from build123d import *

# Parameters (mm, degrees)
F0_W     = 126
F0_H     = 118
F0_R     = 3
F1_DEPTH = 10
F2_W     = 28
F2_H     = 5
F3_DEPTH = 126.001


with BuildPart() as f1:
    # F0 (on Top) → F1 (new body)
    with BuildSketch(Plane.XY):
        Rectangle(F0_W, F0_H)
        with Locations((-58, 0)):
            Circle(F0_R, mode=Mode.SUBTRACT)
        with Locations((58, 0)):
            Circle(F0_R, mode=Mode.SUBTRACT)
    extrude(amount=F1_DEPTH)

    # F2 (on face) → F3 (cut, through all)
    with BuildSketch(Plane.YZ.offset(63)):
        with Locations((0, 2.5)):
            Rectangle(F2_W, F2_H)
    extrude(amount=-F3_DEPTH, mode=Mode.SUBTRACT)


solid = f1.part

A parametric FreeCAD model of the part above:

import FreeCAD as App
import Part
import Sketcher
from FreeCAD import Vector
Q = App.Units.Quantity


def add_polygon(sketch, points):
    """Adds a closed chain of lines whose ends are joined by coincident constraints."""
    first, n = sketch.GeometryCount, len(points)
    for a, b in zip(points, points[1:] + points[:1]):
        sketch.addGeometry(Part.LineSegment(App.Vector(*a, 0), App.Vector(*b, 0)), False)
    for i in range(n):
        sketch.addConstraint(Sketcher.Constraint("Coincident", first + i, 2, first + (i + 1) % n, 1))

doc = App.newDocument("Part")
body = doc.addObject("PartDesign::Body", "Body")

# Sketch on XY plane
sketch1 = body.newObject("Sketcher::SketchObject", "Sketch")
sketch1.AttachmentSupport = (doc.getObject("XY_Plane"), [""])
sketch1.MapMode = "FlatFace"
add_polygon(sketch1, [(-63, 59), (-63, -59), (63, -59), (63, 59)])  # lines 0-3
sketch1.addGeometry(Part.Circle(Vector(-58, 0, 0), Vector(0, 0, 1), 3), False)  # 4
sketch1.addGeometry(Part.Circle(Vector(58, 0, 0), Vector(0, 0, 1), 3), False)  # 5
sketch1.addConstraint([
    Sketcher.Constraint("Vertical", 0),
    Sketcher.Constraint("Horizontal", 1),
    Sketcher.Constraint("Vertical", 2),
    Sketcher.Constraint("Horizontal", 3),
    Sketcher.Constraint("Equal", 4, 5),
    Sketcher.Constraint("Symmetric", 4, 3, 5, 3, -1, 1),
    Sketcher.Constraint("Symmetric", 0, 2, 2, 2, -1, 1),
    Sketcher.Constraint("PointOnObject", 4, 3, -1),
    Sketcher.Constraint("Diameter", 4, Q("6 mm")),
    Sketcher.Constraint("DistanceX", 1, 1, 1, 2, Q("126 mm")),
    Sketcher.Constraint("DistanceY", 0, 2, 0, 1, Q("118 mm")),
    Sketcher.Constraint("DistanceX", 4, 3, -1, 1, Q("58 mm")),
])
pad1 = body.newObject("PartDesign::Pad", "Pad")
pad1.Profile = sketch1
pad1.Length = 10

# Sketch on YZ plane
sketch2 = body.newObject("Sketcher::SketchObject", "Sketch001")
sketch2.AttachmentSupport = (doc.getObject("YZ_Plane"), [""])
sketch2.MapMode = "FlatFace"
sketch2.AttachmentOffset = App.Placement(Vector(0, 0, 63), App.Rotation())
add_polygon(sketch2, [(-14, 5), (-14, 0), (14, 0), (14, 5)])  # lines 0-3
sketch2.addConstraint([
    Sketcher.Constraint("Vertical", 0),
    Sketcher.Constraint("Horizontal", 1),
    Sketcher.Constraint("Vertical", 2),
    Sketcher.Constraint("Horizontal", 3),
    Sketcher.Constraint("Symmetric", 0, 2, 1, 2, -1, 1),
    Sketcher.Constraint("DistanceX", 1, 1, 1, 2, Q("28 mm")),
    Sketcher.Constraint("DistanceY", 0, 2, 0, 1, Q("5 mm")),
])
pocket1 = body.newObject("PartDesign::Pocket", "Pocket")
pocket1.Profile = sketch2
pocket1.Type = "ThroughAll"

doc.recompute()
